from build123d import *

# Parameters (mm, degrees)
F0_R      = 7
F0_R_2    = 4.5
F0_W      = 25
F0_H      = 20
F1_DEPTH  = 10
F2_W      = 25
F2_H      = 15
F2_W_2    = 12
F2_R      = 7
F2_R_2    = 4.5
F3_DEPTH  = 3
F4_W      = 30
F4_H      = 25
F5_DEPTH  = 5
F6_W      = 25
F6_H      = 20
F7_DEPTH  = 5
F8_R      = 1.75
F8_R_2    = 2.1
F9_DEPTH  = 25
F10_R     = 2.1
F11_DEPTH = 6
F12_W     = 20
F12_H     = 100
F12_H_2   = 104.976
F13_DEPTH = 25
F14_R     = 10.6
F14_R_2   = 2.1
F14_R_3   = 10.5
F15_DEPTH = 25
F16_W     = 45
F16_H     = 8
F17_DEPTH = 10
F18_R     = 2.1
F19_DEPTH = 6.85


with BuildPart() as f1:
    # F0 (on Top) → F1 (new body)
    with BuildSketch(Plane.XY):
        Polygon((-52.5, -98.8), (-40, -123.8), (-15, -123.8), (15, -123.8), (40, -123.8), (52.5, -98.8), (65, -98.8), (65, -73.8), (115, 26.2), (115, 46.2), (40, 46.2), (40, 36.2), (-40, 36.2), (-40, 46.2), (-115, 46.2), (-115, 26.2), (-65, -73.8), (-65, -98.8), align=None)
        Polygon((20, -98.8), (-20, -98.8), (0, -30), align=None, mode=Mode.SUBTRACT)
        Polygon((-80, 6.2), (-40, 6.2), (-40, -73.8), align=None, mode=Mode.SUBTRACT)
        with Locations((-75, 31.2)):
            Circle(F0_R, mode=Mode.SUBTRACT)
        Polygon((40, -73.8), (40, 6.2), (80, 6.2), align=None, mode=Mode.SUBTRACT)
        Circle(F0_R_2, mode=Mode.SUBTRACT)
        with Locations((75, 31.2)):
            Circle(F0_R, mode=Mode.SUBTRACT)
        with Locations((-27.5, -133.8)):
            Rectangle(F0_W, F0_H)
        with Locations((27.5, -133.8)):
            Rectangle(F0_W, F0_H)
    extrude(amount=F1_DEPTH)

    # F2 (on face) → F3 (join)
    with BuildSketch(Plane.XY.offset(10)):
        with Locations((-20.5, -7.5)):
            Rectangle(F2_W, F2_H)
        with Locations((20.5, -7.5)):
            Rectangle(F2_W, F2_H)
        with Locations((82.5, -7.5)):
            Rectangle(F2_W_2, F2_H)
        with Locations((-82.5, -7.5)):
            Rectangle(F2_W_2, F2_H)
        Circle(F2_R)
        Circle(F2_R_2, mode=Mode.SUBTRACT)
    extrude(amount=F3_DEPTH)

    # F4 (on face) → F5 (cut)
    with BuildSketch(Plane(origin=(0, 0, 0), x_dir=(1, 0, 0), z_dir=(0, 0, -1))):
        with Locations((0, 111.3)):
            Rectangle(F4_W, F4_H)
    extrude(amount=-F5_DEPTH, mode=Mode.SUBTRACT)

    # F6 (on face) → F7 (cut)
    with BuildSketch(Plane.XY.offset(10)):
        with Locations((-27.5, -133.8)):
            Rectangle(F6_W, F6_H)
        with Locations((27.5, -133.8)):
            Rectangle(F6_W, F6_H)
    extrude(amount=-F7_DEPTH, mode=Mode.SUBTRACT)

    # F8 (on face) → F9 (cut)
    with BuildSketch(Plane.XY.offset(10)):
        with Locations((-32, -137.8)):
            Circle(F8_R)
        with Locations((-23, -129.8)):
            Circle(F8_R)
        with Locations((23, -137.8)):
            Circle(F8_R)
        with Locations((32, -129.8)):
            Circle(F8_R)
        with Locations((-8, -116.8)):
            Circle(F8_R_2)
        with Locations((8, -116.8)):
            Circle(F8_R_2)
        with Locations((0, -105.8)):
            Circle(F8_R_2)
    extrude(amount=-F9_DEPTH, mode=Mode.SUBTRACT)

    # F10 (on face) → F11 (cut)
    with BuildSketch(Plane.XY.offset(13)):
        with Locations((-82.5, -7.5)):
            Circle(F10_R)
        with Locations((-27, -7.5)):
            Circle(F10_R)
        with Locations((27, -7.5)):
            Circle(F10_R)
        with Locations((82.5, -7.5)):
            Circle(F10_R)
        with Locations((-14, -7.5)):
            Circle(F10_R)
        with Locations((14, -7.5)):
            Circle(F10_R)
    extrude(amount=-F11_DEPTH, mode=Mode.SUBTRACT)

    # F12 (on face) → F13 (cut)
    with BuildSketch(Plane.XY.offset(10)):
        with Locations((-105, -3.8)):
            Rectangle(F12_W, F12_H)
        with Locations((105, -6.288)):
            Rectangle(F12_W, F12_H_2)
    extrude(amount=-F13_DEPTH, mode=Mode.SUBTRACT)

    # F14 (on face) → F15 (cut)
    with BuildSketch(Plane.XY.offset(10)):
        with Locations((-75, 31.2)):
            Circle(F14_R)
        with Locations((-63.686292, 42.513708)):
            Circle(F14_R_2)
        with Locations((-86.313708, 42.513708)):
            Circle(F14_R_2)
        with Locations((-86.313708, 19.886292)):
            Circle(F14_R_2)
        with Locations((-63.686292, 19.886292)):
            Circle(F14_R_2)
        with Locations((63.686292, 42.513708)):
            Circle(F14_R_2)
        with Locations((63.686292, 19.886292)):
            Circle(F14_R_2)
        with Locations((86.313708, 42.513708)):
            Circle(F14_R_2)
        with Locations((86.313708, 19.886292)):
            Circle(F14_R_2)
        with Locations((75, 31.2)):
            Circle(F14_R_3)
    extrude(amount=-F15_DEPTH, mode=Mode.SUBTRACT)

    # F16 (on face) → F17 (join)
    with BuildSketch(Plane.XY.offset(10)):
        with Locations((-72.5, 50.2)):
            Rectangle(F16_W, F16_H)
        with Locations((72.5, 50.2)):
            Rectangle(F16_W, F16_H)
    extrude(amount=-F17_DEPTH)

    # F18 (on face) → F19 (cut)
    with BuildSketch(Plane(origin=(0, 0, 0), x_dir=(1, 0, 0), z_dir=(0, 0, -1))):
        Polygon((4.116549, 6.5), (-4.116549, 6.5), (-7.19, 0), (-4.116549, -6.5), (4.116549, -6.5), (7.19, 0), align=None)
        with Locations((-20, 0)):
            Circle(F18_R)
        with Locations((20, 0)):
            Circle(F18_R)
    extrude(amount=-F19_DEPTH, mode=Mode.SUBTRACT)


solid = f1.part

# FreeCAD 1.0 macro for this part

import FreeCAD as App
import Part
import Sketcher
from FreeCAD import Vector
Q = App.Units.Quantity

doc = App.newDocument("Part")
params = doc.addObject("Spreadsheet::Sheet", "Params")
for row, (alias, value) in enumerate([
    ("sketch1_diameter", "14 mm"),
    ("sketch1_diameter2", "9 mm"),
    ("sketch1_width", "25 mm"),
    ("sketch1_width2", "30 mm"),
    ("sketch1_width3", "75 mm"),
    ("pad1_length", "10 mm"),
    ("sketch2_diameter", "14 mm"),
    ("sketch2_diameter2", "9 mm"),
    ("sketch2_width", "25 mm"),
    ("sketch2_width2", "12 mm"),
    ("sketch2_height", "15 mm"),
    ("pad2_length", "3 mm"),
    ("sketch3_width", "30 mm"),
    ("sketch3_height", "25 mm"),
    ("pocket1_length", "5 mm"),
    ("sketch4_width", "25 mm"),
    ("sketch4_height", "20 mm"),
    ("pocket2_length", "5 mm"),
    ("sketch5_diameter", "3.5 mm"),
    ("sketch5_diameter2", "4.2 mm"),
    ("pocket3_length", "25 mm"),
    ("sketch6_diameter", "4.2 mm"),
    ("pocket4_length", "6 mm"),
    ("sketch7_width", "20 mm"),
    ("sketch7_height", "100 mm"),
    ("pocket5_length", "25 mm"),
    ("sketch8_diameter", "21 mm"),
    ("sketch8_diameter2", "21.2 mm"),
    ("sketch8_diameter3", "4.2 mm"),
    ("pocket6_length", "25 mm"),
    ("sketch9_width", "45 mm"),
    ("sketch9_height", "8 mm"),
    ("pad3_length", "10 mm"),
    ("sketch10_diameter", "4.2 mm"),
    ("sketch10_length", "7.19 mm"),
    ("pocket7_length", "6.85 mm"),
], start=1):
    params.set(f"A{row}", alias)
    params.set(f"B{row}", "=" + value)
    params.setAlias(f"B{row}", alias)

body = doc.addObject("PartDesign::Body", "Body")

# Sketch on XY plane
sketch1 = body.newObject("Sketcher::SketchObject", "Sketch")
sketch1.AttachmentSupport = (doc.getObject("XY_Plane"), [""])
sketch1.MapMode = "FlatFace"
sketch1.addGeometry([
    Part.LineSegment(Vector(-52.5, -98.8, 0), Vector(-40, -123.8, 0)),  # 0
    Part.LineSegment(Vector(-40, -123.8, 0), Vector(-40, -143.8, 0)),  # 1
    Part.LineSegment(Vector(-40, -143.8, 0), Vector(-15, -143.8, 0)),  # 2
    Part.LineSegment(Vector(-15, -143.8, 0), Vector(-15, -123.8, 0)),  # 3
    Part.LineSegment(Vector(-15, -123.8, 0), Vector(15, -123.8, 0)),  # 4
    Part.LineSegment(Vector(15, -123.8, 0), Vector(15, -143.8, 0)),  # 5
    Part.LineSegment(Vector(15, -143.8, 0), Vector(40, -143.8, 0)),  # 6
    Part.LineSegment(Vector(40, -143.8, 0), Vector(40, -123.8, 0)),  # 7
    Part.LineSegment(Vector(40, -123.8, 0), Vector(52.5, -98.8, 0)),  # 8
    Part.LineSegment(Vector(52.5, -98.8, 0), Vector(65, -98.8, 0)),  # 9
    Part.LineSegment(Vector(65, -98.8, 0), Vector(65, -73.8, 0)),  # 10
    Part.LineSegment(Vector(65, -73.8, 0), Vector(115, 26.2, 0)),  # 11
    Part.LineSegment(Vector(115, 26.2, 0), Vector(115, 46.2, 0)),  # 12
    Part.LineSegment(Vector(115, 46.2, 0), Vector(40, 46.2, 0)),  # 13
    Part.LineSegment(Vector(40, 46.2, 0), Vector(40, 36.2, 0)),  # 14
    Part.LineSegment(Vector(40, 36.2, 0), Vector(-40, 36.2, 0)),  # 15
    Part.LineSegment(Vector(-40, 36.2, 0), Vector(-40, 46.2, 0)),  # 16
    Part.LineSegment(Vector(-40, 46.2, 0), Vector(-115, 46.2, 0)),  # 17
    Part.LineSegment(Vector(-115, 46.2, 0), Vector(-115, 26.2, 0)),  # 18
    Part.LineSegment(Vector(-115, 26.2, 0), Vector(-65, -73.8, 0)),  # 19
    Part.LineSegment(Vector(-65, -73.8, 0), Vector(-65, -98.8, 0)),  # 20
    Part.LineSegment(Vector(-65, -98.8, 0), Vector(-52.5, -98.8, 0)),  # 21
    Part.LineSegment(Vector(-40, -73.8, 0), Vector(-80, 6.2, 0)),  # 22
    Part.LineSegment(Vector(-80, 6.2, 0), Vector(-40, 6.2, 0)),  # 23
    Part.LineSegment(Vector(-40, 6.2, 0), Vector(-40, -73.8, 0)),  # 24
    Part.LineSegment(Vector(0, -30, 0), Vector(20, -98.8, 0)),  # 25
    Part.LineSegment(Vector(20, -98.8, 0), Vector(-20, -98.8, 0)),  # 26
    Part.LineSegment(Vector(-20, -98.8, 0), Vector(0, -30, 0)),  # 27
    Part.LineSegment(Vector(80, 6.2, 0), Vector(40, -73.8, 0)),  # 28
    Part.LineSegment(Vector(40, -73.8, 0), Vector(40, 6.2, 0)),  # 29
    Part.LineSegment(Vector(40, 6.2, 0), Vector(80, 6.2, 0)),  # 30
    Part.Circle(Vector(-75, 31.2, 0), Vector(0, 0, 1), 7),  # 31
    Part.Circle(Vector(0, 0, 0), Vector(0, 0, 1), 4.5),  # 32
    Part.Circle(Vector(75, 31.2, 0), Vector(0, 0, 1), 7),  # 33
], False)
sketch1.addConstraint([
    Sketcher.Constraint("Coincident", 0, 2, 1, 1),
    Sketcher.Constraint("Coincident", 1, 2, 2, 1),
    Sketcher.Constraint("Coincident", 2, 2, 3, 1),
    Sketcher.Constraint("Coincident", 3, 2, 4, 1),
    Sketcher.Constraint("Coincident", 4, 2, 5, 1),
    Sketcher.Constraint("Coincident", 5, 2, 6, 1),
    Sketcher.Constraint("Coincident", 6, 2, 7, 1),
    Sketcher.Constraint("Coincident", 7, 2, 8, 1),
    Sketcher.Constraint("Coincident", 8, 2, 9, 1),
    Sketcher.Constraint("Coincident", 9, 2, 10, 1),
    Sketcher.Constraint("Coincident", 10, 2, 11, 1),
    Sketcher.Constraint("Coincident", 11, 2, 12, 1),
    Sketcher.Constraint("Coincident", 12, 2, 13, 1),
    Sketcher.Constraint("Coincident", 13, 2, 14, 1),
    Sketcher.Constraint("Coincident", 14, 2, 15, 1),
    Sketcher.Constraint("Coincident", 15, 2, 16, 1),
    Sketcher.Constraint("Coincident", 16, 2, 17, 1),
    Sketcher.Constraint("Coincident", 17, 2, 18, 1),
    Sketcher.Constraint("Coincident", 18, 2, 19, 1),
    Sketcher.Constraint("Coincident", 19, 2, 20, 1),
    Sketcher.Constraint("Coincident", 20, 2, 21, 1),
    Sketcher.Constraint("Coincident", 21, 2, 0, 1),
    Sketcher.Constraint("Coincident", 22, 2, 23, 1),
    Sketcher.Constraint("Coincident", 23, 2, 24, 1),
    Sketcher.Constraint("Coincident", 24, 2, 22, 1),
    Sketcher.Constraint("Coincident", 25, 2, 26, 1),
    Sketcher.Constraint("Coincident", 26, 2, 27, 1),
    Sketcher.Constraint("Coincident", 27, 2, 25, 1),
    Sketcher.Constraint("Coincident", 28, 2, 29, 1),
    Sketcher.Constraint("Coincident", 29, 2, 30, 1),
    Sketcher.Constraint("Coincident", 30, 2, 28, 1),
    Sketcher.Constraint("Vertical", 1),
    Sketcher.Constraint("Horizontal", 2),
    Sketcher.Constraint("Vertical", 3),
    Sketcher.Constraint("Horizontal", 4),
    Sketcher.Constraint("Vertical", 5),
    Sketcher.Constraint("Horizontal", 6),
    Sketcher.Constraint("Vertical", 7),
    Sketcher.Constraint("Horizontal", 9),
    Sketcher.Constraint("Vertical", 10),
    Sketcher.Constraint("Vertical", 12),
    Sketcher.Constraint("Horizontal", 13),
    Sketcher.Constraint("Vertical", 14),
    Sketcher.Constraint("Horizontal", 15),
    Sketcher.Constraint("Vertical", 16),
    Sketcher.Constraint("Horizontal", 17),
    Sketcher.Constraint("Vertical", 18),
    Sketcher.Constraint("Vertical", 20),
    Sketcher.Constraint("Horizontal", 21),
    Sketcher.Constraint("Horizontal", 23),
    Sketcher.Constraint("Vertical", 24),
    Sketcher.Constraint("Horizontal", 26),
    Sketcher.Constraint("Vertical", 29),
    Sketcher.Constraint("Horizontal", 30),
    Sketcher.Constraint("Coincident", 32, 3, -1, 1),
    Sketcher.Constraint("Equal", 31, 33),
    Sketcher.Constraint("Symmetric", 31, 3, 33, 3, -2),
    Sketcher.Constraint("Symmetric", 2, 2, 5, 2, -2),
    Sketcher.Constraint("Symmetric", 0, 2, 7, 2, -2),
    Sketcher.Constraint("Symmetric", 13, 2, 16, 2, -2),
    Sketcher.Constraint("Symmetric", 11, 2, 18, 2, -2),
    Sketcher.Constraint("Symmetric", 10, 2, 19, 2, -2),
    Sketcher.Constraint("Symmetric", 8, 2, 21, 2, -2),
    Sketcher.Constraint("Symmetric", 24, 2, 28, 2, -2),
    Sketcher.Constraint("Symmetric", 22, 2, 30, 2, -2),
    Sketcher.Constraint("PointOnObject", 27, 2, -2),
    Sketcher.Constraint("Parallel", 8, 11),
    Sketcher.Constraint("Parallel", 19, 22),
    Sketcher.Constraint("Horizontal", 0, 2, 3, 2),
    Sketcher.Constraint("Horizontal", 19, 2, 24, 2),
    Sketcher.Constraint("Horizontal", 21, 2, 25, 2),
    Sketcher.Constraint("Vertical", 7, 2, 13, 2),
    Sketcher.Constraint("Vertical", 16, 2, 23, 2),
    Sketcher.Constraint("Equal", 23, 26),
    Sketcher.Constraint("Equal", 6, 10),
    Sketcher.Constraint("Equal", 7, 12),
    Sketcher.Constraint("Equal", 15, 24),
    Sketcher.Constraint("Equal", 25, 27),
    Sketcher.Constraint("Diameter", 31, Q("14 mm")),
    Sketcher.Constraint("Diameter", 32, Q("9 mm")),
    Sketcher.Constraint("DistanceX", 2, 1, 2, 2, Q("25 mm")),
    Sketcher.Constraint("DistanceX", 4, 1, 4, 2, Q("30 mm")),
    Sketcher.Constraint("DistanceX", 13, 2, 13, 1, Q("75 mm")),
    Sketcher.Constraint("DistanceX", 23, 1, 23, 2, Q("40 mm")),
    Sketcher.Constraint("DistanceY", 1, 2, 1, 1, Q("20 mm")),
    Sketcher.Constraint("DistanceY", 14, 2, 14, 1, Q("10 mm")),
    Sketcher.Constraint("DistanceX", 9, 1, 9, 2, Q("12.5 mm")),
    Sketcher.Constraint("DistanceX", 31, 3, -1, 1, Q("75 mm")),
    Sketcher.Constraint("DistanceX", -1, 1, 9, 2, Q("65 mm")),
    Sketcher.Constraint("DistanceY", 27, 2, -1, 1, Q("30 mm")),
    Sketcher.Constraint("DistanceY", 0, 2, 31, 3, Q("155 mm")),
    Sketcher.Constraint("DistanceY", -1, 1, 31, 3, Q("31.2 mm")),
])
sketch1.setExpression("Constraints[78]", "Params.sketch1_diameter")
sketch1.setExpression("Constraints[79]", "Params.sketch1_diameter2")
sketch1.setExpression("Constraints[80]", "Params.sketch1_width")
sketch1.setExpression("Constraints[81]", "Params.sketch1_width2")
sketch1.setExpression("Constraints[82]", "Params.sketch1_width3")
pad1 = body.newObject("PartDesign::Pad", "Pad")
pad1.Profile = sketch1
pad1.setExpression("Length", "Params.pad1_length")

# Sketch on XY plane
sketch2 = body.newObject("Sketcher::SketchObject", "Sketch001")
sketch2.AttachmentSupport = (doc.getObject("XY_Plane"), [""])
sketch2.MapMode = "FlatFace"
sketch2.AttachmentOffset = App.Placement(Vector(0, 0, 10), App.Rotation())
sketch2.addGeometry([
    Part.LineSegment(Vector(-33, 0, 0), Vector(-33, -15, 0)),  # 0
    Part.LineSegment(Vector(-33, -15, 0), Vector(-8, -15, 0)),  # 1
    Part.LineSegment(Vector(-8, -15, 0), Vector(-8, 0, 0)),  # 2
    Part.LineSegment(Vector(-8, 0, 0), Vector(-33, 0, 0)),  # 3
    Part.LineSegment(Vector(8, 0, 0), Vector(8, -15, 0)),  # 4
    Part.LineSegment(Vector(8, -15, 0), Vector(33, -15, 0)),  # 5
    Part.LineSegment(Vector(33, -15, 0), Vector(33, 0, 0)),  # 6
    Part.LineSegment(Vector(33, 0, 0), Vector(8, 0, 0)),  # 7
    Part.LineSegment(Vector(76.5, 0, 0), Vector(76.5, -15, 0)),  # 8
    Part.LineSegment(Vector(76.5, -15, 0), Vector(88.5, -15, 0)),  # 9
    Part.LineSegment(Vector(88.5, -15, 0), Vector(88.5, 0, 0)),  # 10
    Part.LineSegment(Vector(88.5, 0, 0), Vector(76.5, 0, 0)),  # 11
    Part.LineSegment(Vector(-88.5, 0, 0), Vector(-88.5, -15, 0)),  # 12
    Part.LineSegment(Vector(-88.5, -15, 0), Vector(-76.5, -15, 0)),  # 13
    Part.LineSegment(Vector(-76.5, -15, 0), Vector(-76.5, 0, 0)),  # 14
    Part.LineSegment(Vector(-76.5, 0, 0), Vector(-88.5, 0, 0)),  # 15
    Part.Circle(Vector(0, 0, 0), Vector(0, 0, 1), 7),  # 16
    Part.Circle(Vector(0, 0, 0), Vector(0, 0, 1), 4.5),  # 17
], False)
sketch2.addConstraint([
    Sketcher.Constraint("Coincident", 0, 2, 1, 1),
    Sketcher.Constraint("Coincident", 1, 2, 2, 1),
    Sketcher.Constraint("Coincident", 2, 2, 3, 1),
    Sketcher.Constraint("Coincident", 3, 2, 0, 1),
    Sketcher.Constraint("Coincident", 4, 2, 5, 1),
    Sketcher.Constraint("Coincident", 5, 2, 6, 1),
    Sketcher.Constraint("Coincident", 6, 2, 7, 1),
    Sketcher.Constraint("Coincident", 7, 2, 4, 1),
    Sketcher.Constraint("Coincident", 8, 2, 9, 1),
    Sketcher.Constraint("Coincident", 9, 2, 10, 1),
    Sketcher.Constraint("Coincident", 10, 2, 11, 1),
    Sketcher.Constraint("Coincident", 11, 2, 8, 1),
    Sketcher.Constraint("Coincident", 12, 2, 13, 1),
    Sketcher.Constraint("Coincident", 13, 2, 14, 1),
    Sketcher.Constraint("Coincident", 14, 2, 15, 1),
    Sketcher.Constraint("Coincident", 15, 2, 12, 1),
    Sketcher.Constraint("Vertical", 0),
    Sketcher.Constraint("Horizontal", 1),
    Sketcher.Constraint("Vertical", 2),
    Sketcher.Constraint("Horizontal", 3),
    Sketcher.Constraint("Vertical", 4),
    Sketcher.Constraint("Horizontal", 5),
    Sketcher.Constraint("Vertical", 6),
    Sketcher.Constraint("Horizontal", 7),
    Sketcher.Constraint("Vertical", 8),
    Sketcher.Constraint("Horizontal", 9),
    Sketcher.Constraint("Vertical", 10),
    Sketcher.Constraint("Horizontal", 11),
    Sketcher.Constraint("Vertical", 12),
    Sketcher.Constraint("Horizontal", 13),
    Sketcher.Constraint("Vertical", 14),
    Sketcher.Constraint("Horizontal", 15),
    Sketcher.Constraint("Coincident", 16, 3, -1, 1),
    Sketcher.Constraint("Coincident", 17, 3, -1, 1),
    Sketcher.Constraint("Symmetric", 3, 2, 6, 2, -1, 1),
    Sketcher.Constraint("Symmetric", 11, 2, 14, 2, -1, 1),
    Sketcher.Constraint("Symmetric", 1, 2, 4, 2, -2),
    Sketcher.Constraint("Symmetric", 9, 2, 12, 2, -2),
    Sketcher.Constraint("PointOnObject", 2, 2, -1),
    Sketcher.Constraint("PointOnObject", 10, 2, -1),
    Sketcher.Constraint("Horizontal", 5, 2, 8, 2),
    Sketcher.Constraint("Diameter", 16, Q("14 mm")),
    Sketcher.Constraint("Diameter", 17, Q("9 mm")),
    Sketcher.Constraint("DistanceX", 1, 1, 1, 2, Q("25 mm")),
    Sketcher.Constraint("DistanceX", 9, 1, 9, 2, Q("12 mm")),
    Sketcher.Constraint("DistanceY", 0, 2, 0, 1, Q("15 mm")),
    Sketcher.Constraint("DistanceX", 0, 2, -1, 1, Q("33 mm")),
    Sketcher.Constraint("DistanceX", -1, 1, 8, 2, Q("76.5 mm")),
])
sketch2.setExpression("Constraints[41]", "Params.sketch2_diameter")
sketch2.setExpression("Constraints[42]", "Params.sketch2_diameter2")
sketch2.setExpression("Constraints[43]", "Params.sketch2_width")
sketch2.setExpression("Constraints[44]", "Params.sketch2_width2")
sketch2.setExpression("Constraints[45]", "Params.sketch2_height")
pad2 = body.newObject("PartDesign::Pad", "Pad001")
pad2.Profile = sketch2
pad2.setExpression("Length", "Params.pad2_length")

# Sketch on XY plane
sketch3 = body.newObject("Sketcher::SketchObject", "Sketch002")
sketch3.AttachmentSupport = (doc.getObject("XY_Plane"), [""])
sketch3.MapMode = "FlatFace"
sketch3.addGeometry([
    Part.LineSegment(Vector(-15, -124, 0), Vector(-15, -99, 0)),
    Part.LineSegment(Vector(-15, -99, 0), Vector(15, -99, 0)),
    Part.LineSegment(Vector(15, -99, 0), Vector(15, -124, 0)),
    Part.LineSegment(Vector(15, -124, 0), Vector(-15, -124, 0)),
], False)
sketch3.addConstraint([
    Sketcher.Constraint("Coincident", 0, 2, 1, 1),
    Sketcher.Constraint("Coincident", 1, 2, 2, 1),
    Sketcher.Constraint("Coincident", 2, 2, 3, 1),
    Sketcher.Constraint("Coincident", 3, 2, 0, 1),
    Sketcher.Constraint("Vertical", 0),
    Sketcher.Constraint("Horizontal", 1),
    Sketcher.Constraint("Vertical", 2),
    Sketcher.Constraint("Horizontal", 3),
    Sketcher.Constraint("DistanceX", 1, 1, 1, 2, Q("30 mm")),
    Sketcher.Constraint("DistanceY", 0, 1, 0, 2, Q("25 mm")),
    Sketcher.Constraint("DistanceX", 0, 2, -1, 1, Q("15 mm")),
    Sketcher.Constraint("DistanceY", 0, 2, -1, 1, Q("98.8 mm")),
])
sketch3.setExpression("Constraints[8]", "Params.sketch3_width")
sketch3.setExpression("Constraints[9]", "Params.sketch3_height")
pocket1 = body.newObject("PartDesign::Pocket", "Pocket")
pocket1.Profile = sketch3
pocket1.setExpression("Length", "Params.pocket1_length")
pocket1.Reversed = True

# Sketch on XY plane
sketch4 = body.newObject("Sketcher::SketchObject", "Sketch003")
sketch4.AttachmentSupport = (doc.getObject("XY_Plane"), [""])
sketch4.MapMode = "FlatFace"
sketch4.AttachmentOffset = App.Placement(Vector(0, 0, 10), App.Rotation())
sketch4.addGeometry([
    Part.LineSegment(Vector(-40, -124, 0), Vector(-40, -144, 0)),  # 0
    Part.LineSegment(Vector(-40, -144, 0), Vector(-15, -144, 0)),  # 1
    Part.LineSegment(Vector(-15, -144, 0), Vector(-15, -124, 0)),  # 2
    Part.LineSegment(Vector(-15, -124, 0), Vector(-40, -124, 0)),  # 3
    Part.LineSegment(Vector(15, -124, 0), Vector(15, -144, 0)),  # 4
    Part.LineSegment(Vector(15, -144, 0), Vector(40, -144, 0)),  # 5
    Part.LineSegment(Vector(40, -144, 0), Vector(40, -124, 0)),  # 6
    Part.LineSegment(Vector(40, -124, 0), Vector(15, -124, 0)),  # 7
], False)
sketch4.addConstraint([
    Sketcher.Constraint("Coincident", 0, 2, 1, 1),
    Sketcher.Constraint("Coincident", 1, 2, 2, 1),
    Sketcher.Constraint("Coincident", 2, 2, 3, 1),
    Sketcher.Constraint("Coincident", 3, 2, 0, 1),
    Sketcher.Constraint("Coincident", 4, 2, 5, 1),
    Sketcher.Constraint("Coincident", 5, 2, 6, 1),
    Sketcher.Constraint("Coincident", 6, 2, 7, 1),
    Sketcher.Constraint("Coincident", 7, 2, 4, 1),
    Sketcher.Constraint("Vertical", 0),
    Sketcher.Constraint("Horizontal", 1),
    Sketcher.Constraint("Vertical", 2),
    Sketcher.Constraint("Horizontal", 3),
    Sketcher.Constraint("Vertical", 4),
    Sketcher.Constraint("Horizontal", 5),
    Sketcher.Constraint("Vertical", 6),
    Sketcher.Constraint("Horizontal", 7),
    Sketcher.Constraint("Symmetric", 1, 2, 4, 2, -2),
    Sketcher.Constraint("Symmetric", 3, 2, 6, 2, -2),
    Sketcher.Constraint("DistanceX", 1, 1, 1, 2, Q("25 mm")),
    Sketcher.Constraint("DistanceY", 0, 2, 0, 1, Q("20 mm")),
    Sketcher.Constraint("DistanceX", 0, 2, -1, 1, Q("40 mm")),
    Sketcher.Constraint("DistanceY", 0, 2, -1, 1, Q("143.8 mm")),
])
sketch4.setExpression("Constraints[18]", "Params.sketch4_width")
sketch4.setExpression("Constraints[19]", "Params.sketch4_height")
pocket2 = body.newObject("PartDesign::Pocket", "Pocket001")
pocket2.Profile = sketch4
pocket2.setExpression("Length", "Params.pocket2_length")

# Sketch on XY plane
sketch5 = body.newObject("Sketcher::SketchObject", "Sketch004")
sketch5.AttachmentSupport = (doc.getObject("XY_Plane"), [""])
sketch5.MapMode = "FlatFace"
sketch5.AttachmentOffset = App.Placement(Vector(0, 0, 10), App.Rotation())
sketch5.addGeometry([
    Part.Circle(Vector(-32, -137.8, 0), Vector(0, 0, 1), 1.8),  # 0
    Part.Circle(Vector(-23, -129.8, 0), Vector(0, 0, 1), 1.8),  # 1
    Part.Circle(Vector(23, -137.8, 0), Vector(0, 0, 1), 1.8),  # 2
    Part.Circle(Vector(32, -129.8, 0), Vector(0, 0, 1), 1.8),  # 3
    Part.Circle(Vector(-8, -116.8, 0), Vector(0, 0, 1), 2.1),  # 4
    Part.Circle(Vector(8, -116.8, 0), Vector(0, 0, 1), 2.1),  # 5
    Part.Circle(Vector(0, -105.8, 0), Vector(0, 0, 1), 2.1),  # 6
], False)
sketch5.addConstraint([
    Sketcher.Constraint("Equal", 0, 1),
    Sketcher.Constraint("Equal", 1, 2),
    Sketcher.Constraint("Equal", 2, 3),
    Sketcher.Constraint("Equal", 4, 5),
    Sketcher.Constraint("Equal", 5, 6),
    Sketcher.Constraint("Symmetric", 4, 3, 5, 3, -2),
    Sketcher.Constraint("PointOnObject", 6, 3, -2),
    Sketcher.Constraint("Horizontal", 0, 3, 2, 3),
    Sketcher.Constraint("Horizontal", 1, 3, 3, 3),
    Sketcher.Constraint("Diameter", 0, Q("3.5 mm")),
    Sketcher.Constraint("Diameter", 4, Q("4.2 mm")),
    Sketcher.Constraint("DistanceX", 0, 3, -1, 1, Q("32 mm")),
    Sketcher.Constraint("DistanceX", 1, 3, -1, 1, Q("23 mm")),
    Sketcher.Constraint("DistanceX", -1, 1, 2, 3, Q("23 mm")),
    Sketcher.Constraint("DistanceX", -1, 1, 3, 3, Q("32 mm")),
    Sketcher.Constraint("DistanceX", 4, 3, -1, 1, Q("8 mm")),
    Sketcher.Constraint("DistanceY", 0, 3, 1, 3, Q("8 mm")),
    Sketcher.Constraint("DistanceY", 1, 3, 4, 3, Q("13 mm")),
    Sketcher.Constraint("DistanceY", 4, 3, 6, 3, Q("11 mm")),
    Sketcher.Constraint("DistanceY", 0, 3, -1, 1, Q("137.8 mm")),
])
sketch5.setExpression("Constraints[9]", "Params.sketch5_diameter")
sketch5.setExpression("Constraints[10]", "Params.sketch5_diameter2")
pocket3 = body.newObject("PartDesign::Pocket", "Pocket002")
pocket3.Profile = sketch5
pocket3.setExpression("Length", "Params.pocket3_length")

# Sketch on XY plane
sketch6 = body.newObject("Sketcher::SketchObject", "Sketch005")
sketch6.AttachmentSupport = (doc.getObject("XY_Plane"), [""])
sketch6.MapMode = "FlatFace"
sketch6.AttachmentOffset = App.Placement(Vector(0, 0, 13), App.Rotation())
sketch6.addGeometry([
    Part.Circle(Vector(-82.5, -7.5, 0), Vector(0, 0, 1), 2.1),  # 0
    Part.Circle(Vector(-27, -7.5, 0), Vector(0, 0, 1), 2.1),  # 1
    Part.Circle(Vector(27, -7.5, 0), Vector(0, 0, 1), 2.1),  # 2
    Part.Circle(Vector(82.5, -7.5, 0), Vector(0, 0, 1), 2.1),  # 3
    Part.Circle(Vector(-14, -7.5, 0), Vector(0, 0, 1), 2.1),  # 4
    Part.Circle(Vector(14, -7.5, 0), Vector(0, 0, 1), 2.1),  # 5
], False)
sketch6.addConstraint([
    Sketcher.Constraint("Equal", 0, 1),
    Sketcher.Constraint("Equal", 1, 2),
    Sketcher.Constraint("Equal", 2, 3),
    Sketcher.Constraint("Equal", 3, 4),
    Sketcher.Constraint("Equal", 4, 5),
    Sketcher.Constraint("Symmetric", 1, 3, 2, 3, -2),
    Sketcher.Constraint("Symmetric", 0, 3, 3, 3, -2),
    Sketcher.Constraint("Symmetric", 4, 3, 5, 3, -2),
    Sketcher.Constraint("Horizontal", 0, 3, 1, 3),
    Sketcher.Constraint("Horizontal", 3, 3, 4, 3),
    Sketcher.Constraint("Diameter", 0, Q("4.2 mm")),
    Sketcher.Constraint("DistanceX", 1, 3, -1, 1, Q("27 mm")),
    Sketcher.Constraint("DistanceX", 4, 3, -1, 1, Q("14 mm")),
    Sketcher.Constraint("DistanceX", 0, 3, 3, 3, Q("165 mm")),
    Sketcher.Constraint("DistanceY", 0, 3, -1, 1, Q("7.5 mm")),
])
sketch6.setExpression("Constraints[10]", "Params.sketch6_diameter")
pocket4 = body.newObject("PartDesign::Pocket", "Pocket003")
pocket4.Profile = sketch6
pocket4.setExpression("Length", "Params.pocket4_length")

# Sketch on XY plane
sketch7 = body.newObject("Sketcher::SketchObject", "Sketch006")
sketch7.AttachmentSupport = (doc.getObject("XY_Plane"), [""])
sketch7.MapMode = "FlatFace"
sketch7.AttachmentOffset = App.Placement(Vector(0, 0, 10), App.Rotation())
sketch7.addGeometry([
    Part.LineSegment(Vector(-115, 46, 0), Vector(-115, -54, 0)),  # 0
    Part.LineSegment(Vector(-115, -54, 0), Vector(-95, -54, 0)),  # 1
    Part.LineSegment(Vector(-95, -54, 0), Vector(-95, 46, 0)),  # 2
    Part.LineSegment(Vector(-95, 46, 0), Vector(-115, 46, 0)),  # 3
    Part.LineSegment(Vector(95, 46, 0), Vector(95, -59, 0)),  # 4
    Part.LineSegment(Vector(95, -59, 0), Vector(115, -59, 0)),  # 5
    Part.LineSegment(Vector(115, -59, 0), Vector(115, 46, 0)),  # 6
    Part.LineSegment(Vector(115, 46, 0), Vector(95, 46, 0)),  # 7
], False)
sketch7.addConstraint([
    Sketcher.Constraint("Coincident", 0, 2, 1, 1),
    Sketcher.Constraint("Coincident", 1, 2, 2, 1),
    Sketcher.Constraint("Coincident", 2, 2, 3, 1),
    Sketcher.Constraint("Coincident", 3, 2, 0, 1),
    Sketcher.Constraint("Coincident", 4, 2, 5, 1),
    Sketcher.Constraint("Coincident", 5, 2, 6, 1),
    Sketcher.Constraint("Coincident", 6, 2, 7, 1),
    Sketcher.Constraint("Coincident", 7, 2, 4, 1),
    Sketcher.Constraint("Vertical", 0),
    Sketcher.Constraint("Horizontal", 1),
    Sketcher.Constraint("Vertical", 2),
    Sketcher.Constraint("Horizontal", 3),
    Sketcher.Constraint("Vertical", 4),
    Sketcher.Constraint("Horizontal", 5),
    Sketcher.Constraint("Vertical", 6),
    Sketcher.Constraint("Horizontal", 7),
    Sketcher.Constraint("Symmetric", 3, 2, 6, 2, -2),
    Sketcher.Constraint("Equal", 3, 5),
    Sketcher.Constraint("DistanceX", 1, 1, 1, 2, Q("20 mm")),
    Sketcher.Constraint("DistanceY", 0, 2, 0, 1, Q("100 mm")),
    Sketcher.Constraint("DistanceX", 0, 2, -1, 1, Q("115 mm")),
    Sketcher.Constraint("DistanceY", 0, 2, -1, 1, Q("53.8 mm")),
    Sketcher.Constraint("DistanceY", 4, 2, 4, 1, Q("104.976 mm")),
])
sketch7.setExpression("Constraints[18]", "Params.sketch7_width")
sketch7.setExpression("Constraints[19]", "Params.sketch7_height")
pocket5 = body.newObject("PartDesign::Pocket", "Pocket004")
pocket5.Profile = sketch7
pocket5.setExpression("Length", "Params.pocket5_length")

# Sketch on XY plane
sketch8 = body.newObject("Sketcher::SketchObject", "Sketch007")
sketch8.AttachmentSupport = (doc.getObject("XY_Plane"), [""])
sketch8.MapMode = "FlatFace"
sketch8.AttachmentOffset = App.Placement(Vector(0, 0, 10), App.Rotation())
sketch8.addGeometry([
    Part.Circle(Vector(-75, 31.2, 0), Vector(0, 0, 1), 10.6),  # 0
    Part.Circle(Vector(-63.7, 42.5, 0), Vector(0, 0, 1), 2.1),  # 1
    Part.Circle(Vector(-86.3, 42.5, 0), Vector(0, 0, 1), 2.1),  # 2
    Part.Circle(Vector(-86.3, 19.9, 0), Vector(0, 0, 1), 2.1),  # 3
    Part.Circle(Vector(-63.7, 19.9, 0), Vector(0, 0, 1), 2.1),  # 4
    Part.Circle(Vector(63.7, 42.5, 0), Vector(0, 0, 1), 2.1),  # 5
    Part.Circle(Vector(63.7, 19.9, 0), Vector(0, 0, 1), 2.1),  # 6
    Part.Circle(Vector(86.3, 42.5, 0), Vector(0, 0, 1), 2.1),  # 7
    Part.Circle(Vector(86.3, 19.9, 0), Vector(0, 0, 1), 2.1),  # 8
    Part.Circle(Vector(75, 31.2, 0), Vector(0, 0, 1), 10.5),  # 9
], False)
sketch8.addConstraint([
    Sketcher.Constraint("Equal", 1, 2),
    Sketcher.Constraint("Equal", 2, 3),
    Sketcher.Constraint("Equal", 3, 4),
    Sketcher.Constraint("Equal", 4, 5),
    Sketcher.Constraint("Equal", 5, 6),
    Sketcher.Constraint("Equal", 6, 7),
    Sketcher.Constraint("Equal", 7, 8),
    Sketcher.Constraint("Symmetric", 1, 3, 5, 3, -2),
    Sketcher.Constraint("Symmetric", 4, 3, 6, 3, -2),
    Sketcher.Constraint("Symmetric", 2, 3, 7, 3, -2),
    Sketcher.Constraint("Symmetric", 3, 3, 8, 3, -2),
    Sketcher.Constraint("Symmetric", 0, 3, 9, 3, -2),
    Sketcher.Constraint("Horizontal", 1, 3, 2, 3),
    Sketcher.Constraint("Horizontal", 3, 3, 4, 3),
    Sketcher.Constraint("Vertical", 2, 3, 3, 3),
    Sketcher.Constraint("Vertical", 1, 3, 4, 3),
    Sketcher.Constraint("Diameter", 9, Q("21 mm")),
    Sketcher.Constraint("Diameter", 0, Q("21.2 mm")),
    Sketcher.Constraint("Diameter", 1, Q("4.2 mm")),
    Sketcher.Constraint("DistanceX", 0, 3, -1, 1, Q("75 mm")),
    Sketcher.Constraint("DistanceX", 2, 3, 5, 3, Q("150 mm")),
    Sketcher.Constraint("DistanceY", -1, 1, 0, 3, Q("31.2 mm")),
    Sketcher.Constraint("DistanceX", 2, 3, -1, 1, Q("86.313708 mm")),
    Sketcher.Constraint("DistanceY", 0, 3, 1, 3, Q("11.313708 mm")),
    Sketcher.Constraint("DistanceY", -1, 1, 3, 3, Q("19.886292 mm")),
])
sketch8.setExpression("Constraints[16]", "Params.sketch8_diameter")
sketch8.setExpression("Constraints[17]", "Params.sketch8_diameter2")
sketch8.setExpression("Constraints[18]", "Params.sketch8_diameter3")
pocket6 = body.newObject("PartDesign::Pocket", "Pocket005")
pocket6.Profile = sketch8
pocket6.setExpression("Length", "Params.pocket6_length")

# Sketch on XY plane
sketch9 = body.newObject("Sketcher::SketchObject", "Sketch008")
sketch9.AttachmentSupport = (doc.getObject("XY_Plane"), [""])
sketch9.MapMode = "FlatFace"
sketch9.AttachmentOffset = App.Placement(Vector(0, 0, 10), App.Rotation())
sketch9.addGeometry([
    Part.LineSegment(Vector(-95, 54, 0), Vector(-95, 46, 0)),  # 0
    Part.LineSegment(Vector(-95, 46, 0), Vector(-50, 46, 0)),  # 1
    Part.LineSegment(Vector(-50, 46, 0), Vector(-50, 54, 0)),  # 2
    Part.LineSegment(Vector(-50, 54, 0), Vector(-95, 54, 0)),  # 3
    Part.LineSegment(Vector(50, 54, 0), Vector(50, 46, 0)),  # 4
    Part.LineSegment(Vector(50, 46, 0), Vector(95, 46, 0)),  # 5
    Part.LineSegment(Vector(95, 46, 0), Vector(95, 54, 0)),  # 6
    Part.LineSegment(Vector(95, 54, 0), Vector(50, 54, 0)),  # 7
], False)
sketch9.addConstraint([
    Sketcher.Constraint("Coincident", 0, 2, 1, 1),
    Sketcher.Constraint("Coincident", 1, 2, 2, 1),
    Sketcher.Constraint("Coincident", 2, 2, 3, 1),
    Sketcher.Constraint("Coincident", 3, 2, 0, 1),
    Sketcher.Constraint("Coincident", 4, 2, 5, 1),
    Sketcher.Constraint("Coincident", 5, 2, 6, 1),
    Sketcher.Constraint("Coincident", 6, 2, 7, 1),
    Sketcher.Constraint("Coincident", 7, 2, 4, 1),
    Sketcher.Constraint("Vertical", 0),
    Sketcher.Constraint("Horizontal", 1),
    Sketcher.Constraint("Vertical", 2),
    Sketcher.Constraint("Horizontal", 3),
    Sketcher.Constraint("Vertical", 4),
    Sketcher.Constraint("Horizontal", 5),
    Sketcher.Constraint("Vertical", 6),
    Sketcher.Constraint("Horizontal", 7),
    Sketcher.Constraint("Symmetric", 1, 2, 4, 2, -2),
    Sketcher.Constraint("Symmetric", 3, 2, 6, 2, -2),
    Sketcher.Constraint("DistanceX", 1, 1, 1, 2, Q("45 mm")),
    Sketcher.Constraint("DistanceY", 0, 2, 0, 1, Q("8 mm")),
    Sketcher.Constraint("DistanceX", 0, 2, -1, 1, Q("95 mm")),
    Sketcher.Constraint("DistanceY", -1, 1, 0, 2, Q("46.2 mm")),
])
sketch9.setExpression("Constraints[18]", "Params.sketch9_width")
sketch9.setExpression("Constraints[19]", "Params.sketch9_height")
pad3 = body.newObject("PartDesign::Pad", "Pad002")
pad3.Profile = sketch9
pad3.setExpression("Length", "Params.pad3_length")
pad3.Reversed = True

# Sketch on XY plane
sketch10 = body.newObject("Sketcher::SketchObject", "Sketch009")
sketch10.AttachmentSupport = (doc.getObject("XY_Plane"), [""])
sketch10.MapMode = "FlatFace"
sketch10.addGeometry([
    Part.LineSegment(Vector(4.1, -6.5, 0), Vector(-4.1, -6.5, 0)),  # 0
    Part.LineSegment(Vector(-4.1, -6.5, 0), Vector(-7.2, 0, 0)),  # 1
    Part.LineSegment(Vector(-7.2, 0, 0), Vector(-4.1, 6.5, 0)),  # 2
    Part.LineSegment(Vector(-4.1, 6.5, 0), Vector(4.1, 6.5, 0)),  # 3
    Part.LineSegment(Vector(4.1, 6.5, 0), Vector(7.2, 0, 0)),  # 4
    Part.LineSegment(Vector(7.2, 0, 0), Vector(4.1, -6.5, 0)),  # 5
    Part.Circle(Vector(-20, 0, 0), Vector(0, 0, 1), 2.1),  # 6
    Part.Circle(Vector(20, 0, 0), Vector(0, 0, 1), 2.1),  # 7
], False)
sketch10.addConstraint([
    Sketcher.Constraint("Coincident", 0, 2, 1, 1),
    Sketcher.Constraint("Coincident", 1, 2, 2, 1),
    Sketcher.Constraint("Coincident", 2, 2, 3, 1),
    Sketcher.Constraint("Coincident", 3, 2, 4, 1),
    Sketcher.Constraint("Coincident", 4, 2, 5, 1),
    Sketcher.Constraint("Coincident", 5, 2, 0, 1),
    Sketcher.Constraint("Horizontal", 0),
    Sketcher.Constraint("Horizontal", 3),
    Sketcher.Constraint("Equal", 6, 7),
    Sketcher.Constraint("Symmetric", 6, 3, 7, 3, -1, 1),
    Sketcher.Constraint("Symmetric", 0, 2, 3, 2, -1, 1),
    Sketcher.Constraint("Symmetric", 1, 2, 4, 2, -1, 1),
    Sketcher.Constraint("PointOnObject", 6, 3, -1),
    Sketcher.Constraint("PointOnObject", 1, 2, -1),
    Sketcher.Constraint("Parallel", 2, 5),
    Sketcher.Constraint("Vertical", 0, 2, 2, 2),
    Sketcher.Constraint("Diameter", 6, Q("4.2 mm")),
    Sketcher.Constraint("DistanceX", 6, 3, -1, 1, Q("20 mm")),
    Sketcher.Constraint("DistanceY", 0, 2, 2, 2, Q("13 mm")),
    Sketcher.Constraint("Distance", 1, Q("7.19 mm")),
    Sketcher.Constraint("DistanceX", 1, 2, -1, 1, Q("7.19 mm")),
])
sketch10.setExpression("Constraints[16]", "Params.sketch10_diameter")
sketch10.setExpression("Constraints[19]", "Params.sketch10_length")
pocket7 = body.newObject("PartDesign::Pocket", "Pocket006")
pocket7.Profile = sketch10
pocket7.setExpression("Length", "Params.pocket7_length")
pocket7.Reversed = True

doc.recompute()
